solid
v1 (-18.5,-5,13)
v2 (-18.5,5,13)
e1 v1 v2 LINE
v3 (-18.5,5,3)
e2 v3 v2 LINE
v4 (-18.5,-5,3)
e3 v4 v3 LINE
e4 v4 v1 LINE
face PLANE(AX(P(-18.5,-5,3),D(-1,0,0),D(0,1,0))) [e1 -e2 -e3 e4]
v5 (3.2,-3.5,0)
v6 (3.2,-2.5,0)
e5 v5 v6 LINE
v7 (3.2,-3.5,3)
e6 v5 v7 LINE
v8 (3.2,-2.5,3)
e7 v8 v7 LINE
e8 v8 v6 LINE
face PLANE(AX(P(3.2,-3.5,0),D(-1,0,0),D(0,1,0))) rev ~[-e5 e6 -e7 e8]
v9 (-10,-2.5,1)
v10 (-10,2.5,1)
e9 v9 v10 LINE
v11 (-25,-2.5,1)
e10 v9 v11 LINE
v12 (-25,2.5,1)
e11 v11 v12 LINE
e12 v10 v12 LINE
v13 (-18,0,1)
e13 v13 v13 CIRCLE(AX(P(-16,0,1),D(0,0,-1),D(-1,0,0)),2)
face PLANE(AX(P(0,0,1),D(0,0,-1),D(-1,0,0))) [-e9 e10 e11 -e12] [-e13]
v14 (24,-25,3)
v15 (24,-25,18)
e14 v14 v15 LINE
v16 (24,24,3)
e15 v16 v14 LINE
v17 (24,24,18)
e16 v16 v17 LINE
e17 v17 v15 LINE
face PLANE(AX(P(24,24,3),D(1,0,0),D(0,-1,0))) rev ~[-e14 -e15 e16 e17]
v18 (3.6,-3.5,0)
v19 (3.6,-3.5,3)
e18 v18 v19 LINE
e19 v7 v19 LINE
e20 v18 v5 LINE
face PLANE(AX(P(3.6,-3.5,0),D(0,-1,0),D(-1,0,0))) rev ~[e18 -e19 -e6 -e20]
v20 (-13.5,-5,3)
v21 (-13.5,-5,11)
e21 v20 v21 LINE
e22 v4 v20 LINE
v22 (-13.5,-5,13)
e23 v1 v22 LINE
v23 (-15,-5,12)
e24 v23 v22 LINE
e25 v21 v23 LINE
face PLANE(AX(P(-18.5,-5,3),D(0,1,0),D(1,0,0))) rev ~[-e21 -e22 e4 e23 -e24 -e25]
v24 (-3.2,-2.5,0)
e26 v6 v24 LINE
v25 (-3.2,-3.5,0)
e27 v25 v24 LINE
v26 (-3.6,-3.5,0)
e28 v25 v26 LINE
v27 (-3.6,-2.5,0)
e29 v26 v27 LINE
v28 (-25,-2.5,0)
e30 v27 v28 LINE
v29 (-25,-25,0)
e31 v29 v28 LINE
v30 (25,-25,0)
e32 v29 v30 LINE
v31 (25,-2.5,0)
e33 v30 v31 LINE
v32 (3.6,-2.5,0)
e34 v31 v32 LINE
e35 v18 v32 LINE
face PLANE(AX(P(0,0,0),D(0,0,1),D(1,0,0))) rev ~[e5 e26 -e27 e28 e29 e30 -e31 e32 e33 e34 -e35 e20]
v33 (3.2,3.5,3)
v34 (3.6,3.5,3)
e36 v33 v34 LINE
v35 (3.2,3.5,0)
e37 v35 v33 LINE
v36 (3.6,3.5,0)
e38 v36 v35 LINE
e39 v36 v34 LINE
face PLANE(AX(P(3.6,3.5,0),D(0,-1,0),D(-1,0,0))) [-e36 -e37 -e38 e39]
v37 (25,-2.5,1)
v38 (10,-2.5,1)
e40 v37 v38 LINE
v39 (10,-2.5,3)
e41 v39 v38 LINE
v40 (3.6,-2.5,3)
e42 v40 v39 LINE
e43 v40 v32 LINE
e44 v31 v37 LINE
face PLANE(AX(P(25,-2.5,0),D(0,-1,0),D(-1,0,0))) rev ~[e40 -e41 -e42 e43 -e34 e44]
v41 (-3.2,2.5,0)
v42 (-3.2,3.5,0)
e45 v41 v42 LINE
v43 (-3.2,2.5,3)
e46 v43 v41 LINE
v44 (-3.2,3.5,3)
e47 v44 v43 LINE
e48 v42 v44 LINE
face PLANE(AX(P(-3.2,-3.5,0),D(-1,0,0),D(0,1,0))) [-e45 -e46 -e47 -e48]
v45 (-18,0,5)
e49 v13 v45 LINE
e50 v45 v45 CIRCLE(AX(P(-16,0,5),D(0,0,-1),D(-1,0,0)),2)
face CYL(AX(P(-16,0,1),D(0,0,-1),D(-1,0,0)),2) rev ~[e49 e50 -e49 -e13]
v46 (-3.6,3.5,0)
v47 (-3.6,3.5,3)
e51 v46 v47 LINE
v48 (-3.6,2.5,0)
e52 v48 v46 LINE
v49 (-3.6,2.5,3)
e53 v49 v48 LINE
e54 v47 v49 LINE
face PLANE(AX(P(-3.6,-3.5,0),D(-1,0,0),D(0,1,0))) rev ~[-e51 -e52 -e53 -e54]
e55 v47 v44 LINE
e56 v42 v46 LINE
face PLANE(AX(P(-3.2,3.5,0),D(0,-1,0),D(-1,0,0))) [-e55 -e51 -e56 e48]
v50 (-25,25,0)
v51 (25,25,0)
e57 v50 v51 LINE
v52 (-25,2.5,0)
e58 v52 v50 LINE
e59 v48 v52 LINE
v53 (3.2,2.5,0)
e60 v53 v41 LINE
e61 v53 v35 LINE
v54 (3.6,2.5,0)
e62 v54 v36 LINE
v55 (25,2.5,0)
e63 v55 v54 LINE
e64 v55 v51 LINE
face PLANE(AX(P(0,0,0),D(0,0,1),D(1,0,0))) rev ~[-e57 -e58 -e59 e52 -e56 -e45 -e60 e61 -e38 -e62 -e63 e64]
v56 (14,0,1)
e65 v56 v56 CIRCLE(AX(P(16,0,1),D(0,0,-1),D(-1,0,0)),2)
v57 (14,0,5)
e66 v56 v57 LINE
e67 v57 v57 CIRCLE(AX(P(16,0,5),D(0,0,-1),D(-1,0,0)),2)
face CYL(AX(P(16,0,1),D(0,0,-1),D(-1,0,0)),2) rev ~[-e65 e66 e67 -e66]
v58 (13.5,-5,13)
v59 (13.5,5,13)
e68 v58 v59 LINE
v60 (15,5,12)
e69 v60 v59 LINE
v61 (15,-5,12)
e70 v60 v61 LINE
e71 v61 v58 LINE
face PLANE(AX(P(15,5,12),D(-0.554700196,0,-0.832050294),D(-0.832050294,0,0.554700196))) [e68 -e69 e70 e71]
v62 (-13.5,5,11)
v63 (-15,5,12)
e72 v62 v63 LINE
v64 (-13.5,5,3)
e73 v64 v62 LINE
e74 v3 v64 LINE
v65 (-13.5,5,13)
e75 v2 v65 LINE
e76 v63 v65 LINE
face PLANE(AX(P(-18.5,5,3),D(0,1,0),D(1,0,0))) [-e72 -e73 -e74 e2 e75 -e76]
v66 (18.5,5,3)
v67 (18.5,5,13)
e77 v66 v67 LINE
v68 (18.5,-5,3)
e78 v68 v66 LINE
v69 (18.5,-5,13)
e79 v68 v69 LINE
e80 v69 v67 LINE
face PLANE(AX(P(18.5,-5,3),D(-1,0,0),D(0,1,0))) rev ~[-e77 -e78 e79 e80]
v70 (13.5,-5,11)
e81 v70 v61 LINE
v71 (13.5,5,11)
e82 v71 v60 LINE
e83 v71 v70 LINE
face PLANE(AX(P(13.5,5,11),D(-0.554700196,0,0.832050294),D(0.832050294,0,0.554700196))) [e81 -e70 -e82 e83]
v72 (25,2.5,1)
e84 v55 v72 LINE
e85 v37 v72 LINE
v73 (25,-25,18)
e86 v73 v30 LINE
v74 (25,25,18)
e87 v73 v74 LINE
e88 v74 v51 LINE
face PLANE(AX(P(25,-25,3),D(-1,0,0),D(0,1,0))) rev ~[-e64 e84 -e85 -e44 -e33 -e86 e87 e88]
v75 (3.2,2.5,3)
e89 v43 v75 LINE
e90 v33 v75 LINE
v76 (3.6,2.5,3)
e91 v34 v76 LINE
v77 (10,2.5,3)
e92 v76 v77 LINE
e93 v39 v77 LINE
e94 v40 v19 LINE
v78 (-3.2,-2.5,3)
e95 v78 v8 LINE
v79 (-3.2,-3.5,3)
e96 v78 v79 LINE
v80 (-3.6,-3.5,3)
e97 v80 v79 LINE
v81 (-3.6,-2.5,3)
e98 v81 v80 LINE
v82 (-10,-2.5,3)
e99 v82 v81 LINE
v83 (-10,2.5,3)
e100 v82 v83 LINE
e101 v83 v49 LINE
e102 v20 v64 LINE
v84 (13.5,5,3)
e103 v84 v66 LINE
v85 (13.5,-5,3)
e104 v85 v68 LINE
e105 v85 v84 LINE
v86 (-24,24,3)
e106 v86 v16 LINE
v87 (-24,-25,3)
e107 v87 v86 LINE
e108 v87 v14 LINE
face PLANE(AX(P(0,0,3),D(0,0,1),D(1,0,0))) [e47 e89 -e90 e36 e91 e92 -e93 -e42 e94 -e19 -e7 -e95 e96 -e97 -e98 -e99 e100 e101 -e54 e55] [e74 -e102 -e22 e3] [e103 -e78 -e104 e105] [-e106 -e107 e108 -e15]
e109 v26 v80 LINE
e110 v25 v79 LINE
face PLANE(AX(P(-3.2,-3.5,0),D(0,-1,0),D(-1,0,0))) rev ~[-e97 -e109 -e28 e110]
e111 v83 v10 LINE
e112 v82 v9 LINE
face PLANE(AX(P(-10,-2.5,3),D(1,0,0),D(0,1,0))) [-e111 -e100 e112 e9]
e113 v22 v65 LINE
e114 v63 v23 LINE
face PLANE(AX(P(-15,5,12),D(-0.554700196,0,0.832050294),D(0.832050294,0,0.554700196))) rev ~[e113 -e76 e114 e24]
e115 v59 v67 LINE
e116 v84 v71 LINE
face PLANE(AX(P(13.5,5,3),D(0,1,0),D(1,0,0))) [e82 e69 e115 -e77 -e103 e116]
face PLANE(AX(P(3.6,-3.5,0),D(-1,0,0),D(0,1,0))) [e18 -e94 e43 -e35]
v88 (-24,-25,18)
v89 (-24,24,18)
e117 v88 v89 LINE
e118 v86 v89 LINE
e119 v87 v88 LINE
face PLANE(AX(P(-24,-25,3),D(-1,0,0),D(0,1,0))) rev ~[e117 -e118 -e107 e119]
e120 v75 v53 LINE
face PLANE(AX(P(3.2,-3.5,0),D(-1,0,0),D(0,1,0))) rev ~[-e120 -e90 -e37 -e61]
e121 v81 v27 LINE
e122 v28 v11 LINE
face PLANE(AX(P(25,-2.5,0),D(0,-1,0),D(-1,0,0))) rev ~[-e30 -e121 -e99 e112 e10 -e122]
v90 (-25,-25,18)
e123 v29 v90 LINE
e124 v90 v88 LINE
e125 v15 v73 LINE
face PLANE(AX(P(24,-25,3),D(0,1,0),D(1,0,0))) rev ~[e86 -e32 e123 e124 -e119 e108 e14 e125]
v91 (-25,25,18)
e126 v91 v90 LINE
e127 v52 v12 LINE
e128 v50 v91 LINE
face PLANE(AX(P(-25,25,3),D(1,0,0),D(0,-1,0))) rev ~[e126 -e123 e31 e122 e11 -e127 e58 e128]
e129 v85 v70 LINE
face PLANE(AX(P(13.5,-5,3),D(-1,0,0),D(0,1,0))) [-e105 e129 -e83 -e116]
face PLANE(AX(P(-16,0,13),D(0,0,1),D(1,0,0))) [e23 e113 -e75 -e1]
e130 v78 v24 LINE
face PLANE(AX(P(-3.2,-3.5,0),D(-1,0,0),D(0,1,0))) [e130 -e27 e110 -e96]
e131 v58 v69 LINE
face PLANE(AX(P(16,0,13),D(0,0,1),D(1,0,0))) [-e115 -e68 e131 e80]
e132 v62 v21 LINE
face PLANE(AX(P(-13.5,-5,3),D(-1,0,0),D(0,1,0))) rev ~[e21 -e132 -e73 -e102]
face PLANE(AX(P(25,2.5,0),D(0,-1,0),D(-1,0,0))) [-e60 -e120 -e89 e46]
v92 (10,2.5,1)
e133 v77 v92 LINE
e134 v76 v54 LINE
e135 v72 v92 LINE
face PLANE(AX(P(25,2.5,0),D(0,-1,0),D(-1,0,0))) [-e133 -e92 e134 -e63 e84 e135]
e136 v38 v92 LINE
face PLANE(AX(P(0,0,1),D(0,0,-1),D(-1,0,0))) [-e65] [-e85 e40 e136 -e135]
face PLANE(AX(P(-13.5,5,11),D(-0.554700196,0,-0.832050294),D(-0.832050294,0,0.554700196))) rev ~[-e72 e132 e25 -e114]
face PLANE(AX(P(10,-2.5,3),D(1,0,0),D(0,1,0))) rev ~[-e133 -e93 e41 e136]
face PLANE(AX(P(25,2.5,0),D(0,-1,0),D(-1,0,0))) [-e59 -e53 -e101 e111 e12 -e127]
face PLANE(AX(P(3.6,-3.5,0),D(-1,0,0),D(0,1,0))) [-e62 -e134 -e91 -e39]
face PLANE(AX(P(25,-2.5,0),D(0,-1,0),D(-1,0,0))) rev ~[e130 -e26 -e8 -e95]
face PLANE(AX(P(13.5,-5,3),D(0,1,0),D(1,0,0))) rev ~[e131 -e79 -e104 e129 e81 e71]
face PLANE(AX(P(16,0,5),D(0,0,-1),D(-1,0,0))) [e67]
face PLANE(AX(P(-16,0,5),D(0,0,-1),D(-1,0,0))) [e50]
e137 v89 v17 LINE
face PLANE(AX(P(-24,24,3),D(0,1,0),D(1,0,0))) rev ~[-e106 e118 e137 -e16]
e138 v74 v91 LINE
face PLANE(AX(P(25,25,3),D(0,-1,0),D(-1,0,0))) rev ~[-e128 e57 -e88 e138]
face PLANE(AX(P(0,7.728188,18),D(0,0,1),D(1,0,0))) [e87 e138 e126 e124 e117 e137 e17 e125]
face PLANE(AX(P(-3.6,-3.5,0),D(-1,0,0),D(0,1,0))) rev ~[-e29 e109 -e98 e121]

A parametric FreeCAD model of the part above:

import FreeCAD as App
import Part
import Sketcher


def add_polygon(sketch, points):
    """Adds a closed chain of lines whose ends are joined by coincident constraints."""
    first, n = sketch.GeometryCount, len(points)
    for a, b in zip(points, points[1:] + points[:1]):
        sketch.addGeometry(Part.LineSegment(App.Vector(*a, 0), App.Vector(*b, 0)), False)
    for i in range(n):
        sketch.addConstraint(Sketcher.Constraint("Coincident", first + i, 2, first + (i + 1) % n, 1))

doc = App.newDocument("Part")
body = doc.addObject("PartDesign::Body", "Body")

# Sketch on XY plane
sketch1 = doc.addObject("Sketcher::SketchObject", "Sketch")
body.addObject(sketch1)
sketch1.AttachmentSupport = (doc.XY_Plane, [""])
sketch1.MapMode = "FlatFace"
add_polygon(sketch1, [(-25, 25), (-25, -25), (25, -25), (25, 25)])  # lines 0-3
sketch1.addConstraint([
    Sketcher.Constraint("Vertical", 0),
    Sketcher.Constraint("Horizontal", 1),
    Sketcher.Constraint("Vertical", 2),
    Sketcher.Constraint("Horizontal", 3),
    Sketcher.Constraint("Symmetric", 0, 2, 2, 2, -1, 1),
    Sketcher.Constraint("Equal", 3, 0),
    Sketcher.Constraint("DistanceX", 1, 1, 1, 2, 50.0),
])
pad1 = doc.addObject("PartDesign::Pad", "Pad")
body.addObject(pad1)
pad1.Profile = sketch1
pad1.Length = 3

# Sketch on XY plane
sketch2 = doc.addObject("Sketcher::SketchObject", "Sketch001")
body.addObject(sketch2)
sketch2.AttachmentSupport = (doc.XY_Plane, [""])
sketch2.MapMode = "FlatFace"
sketch2.AttachmentOffset = App.Placement(App.Vector(0, 0, 3), App.Rotation())
add_polygon(sketch2, [(-10, 2), (-10, -2), (10, -2), (10, 2)])  # lines 0-3
sketch2.addConstraint([
    Sketcher.Constraint("Vertical", 0),
    Sketcher.Constraint("Horizontal", 1),
    Sketcher.Constraint("Vertical", 2),
    Sketcher.Constraint("Horizontal", 3),
    Sketcher.Constraint("Symmetric", 0, 2, 2, 2, -1, 1),
    Sketcher.Constraint("DistanceX", 1, 1, 1, 2, 20.0),
    Sketcher.Constraint("DistanceY", 0, 2, 0, 1, 5.0),
])
pocket1 = doc.addObject("PartDesign::Pocket", "Pocket")
body.addObject(pocket1)
pocket1.Profile = sketch2
pocket1.Length = 2

# Sketch on XY plane
sketch3 = doc.addObject("Sketcher::SketchObject", "Sketch002")
body.addObject(sketch3)
sketch3.AttachmentSupport = (doc.XY_Plane, [""])
sketch3.MapMode = "FlatFace"
add_polygon(sketch3, [(25, 2), (25, -2), (-25, -2), (-25, 2)])  # lines 0-3
sketch3.addConstraint([
    Sketcher.Constraint("Vertical", 0),
    Sketcher.Constraint("Horizontal", 1),
    Sketcher.Constraint("Vertical", 2),
    Sketcher.Constraint("Horizontal", 3),
    Sketcher.Constraint("Symmetric", 0, 2, 2, 2, -1, 1),
    Sketcher.Constraint("DistanceX", 1, 2, 1, 1, 50.0),
    Sketcher.Constraint("DistanceY", 0, 2, 0, 1, 5.0),
])
pocket2 = doc.addObject("PartDesign::Pocket", "Pocket001")
body.addObject(pocket2)
pocket2.Profile = sketch3
pocket2.Length = 1
pocket2.Reversed = True

# Sketch on XY plane
sketch4 = doc.addObject("Sketcher::SketchObject", "Sketch003")
body.addObject(sketch4)
sketch4.AttachmentSupport = (doc.XY_Plane, [""])
sketch4.MapMode = "FlatFace"
sketch4.AttachmentOffset = App.Placement(App.Vector(0, 0, 3), App.Rotation())
add_polygon(sketch4, [(-18, 5), (-18, -5), (-14, -5), (-14, 5)])  # lines 0-3
add_polygon(sketch4, [(14, 5), (14, -5), (18, -5), (18, 5)])  # lines 4-7
sketch4.addConstraint([
    Sketcher.Constraint("Vertical", 0),
    Sketcher.Constraint("Horizontal", 1),
    Sketcher.Constraint("Vertical", 2),
    Sketcher.Constraint("Horizontal", 3),
    Sketcher.Constraint("Vertical", 4),
    Sketcher.Constraint("Horizontal", 5),
    Sketcher.Constraint("Vertical", 6),
    Sketcher.Constraint("Horizontal", 7),
    Sketcher.Constraint("Symmetric", 2, 2, 4, 2, -1, 1),
    Sketcher.Constraint("Symmetric", 0, 2, 6, 2, -1, 1),
    Sketcher.Constraint("Horizontal", 1, 2, 4, 2),
    Sketcher.Constraint("DistanceX", 1, 1, 1, 2, 5.0),
    Sketcher.Constraint("DistanceY", 0, 2, 0, 1, 10.0),
    Sketcher.Constraint("DistanceX", 1, 2, 4, 2, 27.0),
])
pad2 = doc.addObject("PartDesign::Pad", "Pad001")
body.addObject(pad2)
pad2.Profile = sketch4
pad2.Length = 10

# Sketch on XZ plane
sketch5 = doc.addObject("Sketcher::SketchObject", "Sketch004")
body.addObject(sketch5)
sketch5.AttachmentSupport = (doc.XZ_Plane, [""])
sketch5.MapMode = "FlatFace"
sketch5.AttachmentOffset = App.Placement(App.Vector(0, 0, -5), App.Rotation())
add_polygon(sketch5, [(-13.5, 13), (-13.5, 11), (-15, 12)])  # lines 0-2
add_polygon(sketch5, [(13.5, 11), (13.5, 13), (15, 12)])  # lines 3-5
sketch5.addConstraint([
    Sketcher.Constraint("Vertical", 0),
    Sketcher.Constraint("Vertical", 3),
    Sketcher.Constraint("Symmetric", 2, 2, 3, 2, -2),
    Sketcher.Constraint("Symmetric", 1, 2, 4, 2, -2),
    Sketcher.Constraint("Parallel", 1, 4),
    Sketcher.Constraint("Parallel", 2, 5),
    Sketcher.Constraint("DistanceY", 0, 2, 0, 1, 2.0),
    Sketcher.Constraint("DistanceY", -1, 1, 0, 2, 11.0),
    Sketcher.Constraint("DistanceX", 1, 2, -1, 1, 15.0),
    Sketcher.Constraint("DistanceX", 2, 2, 3, 2, 27.0),
])
pocket3 = doc.addObject("PartDesign::Pocket", "Pocket002")
body.addObject(pocket3)
pocket3.Profile = sketch5
pocket3.Length = 10
pocket3.Reversed = True

# Sketch on XY plane
sketch6 = doc.addObject("Sketcher::SketchObject", "Sketch005")
body.addObject(sketch6)
sketch6.AttachmentSupport = (doc.XY_Plane, [""])
sketch6.MapMode = "FlatFace"
sketch6.AttachmentOffset = App.Placement(App.Vector(0, 0, 3), App.Rotation())
add_polygon(sketch6, [(25, 25), (-25, 25), (-25, -25), (-24, -25), (-24, 24), (24, 24), (24, -25), (25, -25)])  # lines 0-7
sketch6.addConstraint([
    Sketcher.Constraint("Horizontal", 0),
    Sketcher.Constraint("Vertical", 1),
    Sketcher.Constraint("Horizontal", 2),
    Sketcher.Constraint("Vertical", 3),
    Sketcher.Constraint("Horizontal", 4),
    Sketcher.Constraint("Vertical", 5),
    Sketcher.Constraint("Horizontal", 6),
    Sketcher.Constraint("Vertical", 7),
    Sketcher.Constraint("Symmetric", 0, 2, 6, 2, -1, 1),
    Sketcher.Constraint("Symmetric", 2, 2, 5, 2, -2),
    Sketcher.Constraint("Equal", 0, 1),
    Sketcher.Constraint("DistanceX", 0, 2, 0, 1, 50.0),
    Sketcher.Constraint("DistanceX", 2, 1, 2, 2, 1.0),
    Sketcher.Constraint("DistanceY", 3, 1, 3, 2, 49.0),
])
pad3 = doc.addObject("PartDesign::Pad", "Pad002")
body.addObject(pad3)
pad3.Profile = sketch6
pad3.Length = 15

# Sketch on XY plane
sketch7 = doc.addObject("Sketcher::SketchObject", "Sketch006")
body.addObject(sketch7)
sketch7.AttachmentSupport = (doc.XY_Plane, [""])
sketch7.MapMode = "FlatFace"
add_polygon(sketch7, [(3.6, 3.5), (3.6, -3.5), (3.2, -3.5), (3.2, 3.5)])  # lines 0-3
add_polygon(sketch7, [(-3.2, 3.5), (-3.2, -3.5), (-3.6, -3.5), (-3.6, 3.5)])  # lines 4-7
sketch7.addConstraint([
    Sketcher.Constraint("Vertical", 0),
    Sketcher.Constraint("Horizontal", 1),
    Sketcher.Constraint("Vertical", 2),
    Sketcher.Constraint("Horizontal", 3),
    Sketcher.Constraint("Vertical", 4),
    Sketcher.Constraint("Horizontal", 5),
    Sketcher.Constraint("Vertical", 6),
    Sketcher.Constraint("Horizontal", 7),
    Sketcher.Constraint("Symmetric", 2, 2, 4, 2, -1, 1),
    Sketcher.Constraint("Symmetric", 0, 2, 6, 2, -1, 1),
    Sketcher.Constraint("Horizontal", 1, 2, 4, 2),
    Sketcher.Constraint("DistanceY", 0, 2, 0, 1, 7.0),
    Sketcher.Constraint("DistanceX", 1, 2, 1, 1, 0.4),
    Sketcher.Constraint("DistanceX", -1, 1, 0, 2, 3.6),
])
pocket4 = doc.addObject("PartDesign::Pocket", "Pocket003")
body.addObject(pocket4)
pocket4.Profile = sketch7
pocket4.Length = 10
pocket4.Reversed = True

# Sketch on XY plane
sketch8 = doc.addObject("Sketcher::SketchObject", "Sketch007")
body.addObject(sketch8)
sketch8.AttachmentSupport = (doc.XY_Plane, [""])
sketch8.MapMode = "FlatFace"
sketch8.AttachmentOffset = App.Placement(App.Vector(0, 0, 1), App.Rotation())
sketch8.addGeometry([
    Part.Circle(App.Vector(16, 0, 0), App.Vector(0, 0, 1), 2),
    Part.Circle(App.Vector(-16, 0, 0), App.Vector(0, 0, 1), 2),
], False)
sketch8.addConstraint([
    Sketcher.Constraint("Equal", 0, 1),
    Sketcher.Constraint("Symmetric", 0, 3, 1, 3, -1, 1),
    Sketcher.Constraint("PointOnObject", 0, 3, -1),
    Sketcher.Constraint("Diameter", 0, 4.0),
    Sketcher.Constraint("DistanceX", -1, 1, 0, 3, 16.0),
])
pocket5 = doc.addObject("PartDesign::Pocket", "Pocket004")
body.addObject(pocket5)
pocket5.Profile = sketch8
pocket5.Length = 4
pocket5.Reversed = True

doc.recompute()
